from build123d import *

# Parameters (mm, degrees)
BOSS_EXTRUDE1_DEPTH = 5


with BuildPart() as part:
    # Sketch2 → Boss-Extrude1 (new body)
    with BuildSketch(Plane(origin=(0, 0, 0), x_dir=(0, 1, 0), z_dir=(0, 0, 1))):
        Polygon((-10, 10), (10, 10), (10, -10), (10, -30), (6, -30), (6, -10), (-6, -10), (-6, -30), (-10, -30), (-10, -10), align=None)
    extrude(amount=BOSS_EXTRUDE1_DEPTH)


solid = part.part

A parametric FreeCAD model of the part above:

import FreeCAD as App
import Part
import Sketcher
from FreeCAD import Vector


def add_polygon(sketch, points):
    """Adds a closed chain of lines whose ends are joined by coincident constraints."""
    first, n = sketch.GeometryCount, len(points)
    for a, b in zip(points, points[1:] + points[:1]):
        sketch.addGeometry(Part.LineSegment(App.Vector(*a, 0), App.Vector(*b, 0)), False)
    for i in range(n):
        sketch.addConstraint(Sketcher.Constraint("Coincident", first + i, 2, first + (i + 1) % n, 1))

doc = App.newDocument("Part")
body = doc.addObject("PartDesign::Body", "Body")

# Sketch on XY plane
sketch1 = body.newObject("Sketcher::SketchObject", "Sketch")
sketch1.AttachmentSupport = (doc.getObject("XY_Plane"), [""])
sketch1.MapMode = "FlatFace"
add_polygon(sketch1, [(-10, 10), (-10, -10), (30, -10), (30, -6), (10, -6), (10, 6), (30, 6), (30, 10)])  # lines 0-7
sketch1.addConstraint([
    Sketcher.Constraint("Vertical", 0),
    Sketcher.Constraint("Horizontal", 1),
    Sketcher.Constraint("Vertical", 2),
    Sketcher.Constraint("Horizontal", 3),
    Sketcher.Constraint("Vertical", 4),
    Sketcher.Constraint("Horizontal", 5),
    Sketcher.Constraint("Vertical", 6),
    Sketcher.Constraint("Horizontal", 7),
    Sketcher.Constraint("Symmetric", 2, 2, 5, 2, -1),
    Sketcher.Constraint("Equal", 5, 0),
    Sketcher.Constraint("Equal", 2, 6),
    Sketcher.Constraint("DistanceX", 1, 1, 1, 2, 40.0),
    Sketcher.Constraint("DistanceX", 3, 2, 3, 1, 20.0),
    Sketcher.Constraint("DistanceY", 2, 1, 2, 2, 4.0),
    Sketcher.Constraint("DistanceX", 0, 2, -1, 1, 10.0),
])
pad1 = body.newObject("PartDesign::Pad", "Pad")
pad1.Profile = sketch1
pad1.Length = 5

doc.recompute()
